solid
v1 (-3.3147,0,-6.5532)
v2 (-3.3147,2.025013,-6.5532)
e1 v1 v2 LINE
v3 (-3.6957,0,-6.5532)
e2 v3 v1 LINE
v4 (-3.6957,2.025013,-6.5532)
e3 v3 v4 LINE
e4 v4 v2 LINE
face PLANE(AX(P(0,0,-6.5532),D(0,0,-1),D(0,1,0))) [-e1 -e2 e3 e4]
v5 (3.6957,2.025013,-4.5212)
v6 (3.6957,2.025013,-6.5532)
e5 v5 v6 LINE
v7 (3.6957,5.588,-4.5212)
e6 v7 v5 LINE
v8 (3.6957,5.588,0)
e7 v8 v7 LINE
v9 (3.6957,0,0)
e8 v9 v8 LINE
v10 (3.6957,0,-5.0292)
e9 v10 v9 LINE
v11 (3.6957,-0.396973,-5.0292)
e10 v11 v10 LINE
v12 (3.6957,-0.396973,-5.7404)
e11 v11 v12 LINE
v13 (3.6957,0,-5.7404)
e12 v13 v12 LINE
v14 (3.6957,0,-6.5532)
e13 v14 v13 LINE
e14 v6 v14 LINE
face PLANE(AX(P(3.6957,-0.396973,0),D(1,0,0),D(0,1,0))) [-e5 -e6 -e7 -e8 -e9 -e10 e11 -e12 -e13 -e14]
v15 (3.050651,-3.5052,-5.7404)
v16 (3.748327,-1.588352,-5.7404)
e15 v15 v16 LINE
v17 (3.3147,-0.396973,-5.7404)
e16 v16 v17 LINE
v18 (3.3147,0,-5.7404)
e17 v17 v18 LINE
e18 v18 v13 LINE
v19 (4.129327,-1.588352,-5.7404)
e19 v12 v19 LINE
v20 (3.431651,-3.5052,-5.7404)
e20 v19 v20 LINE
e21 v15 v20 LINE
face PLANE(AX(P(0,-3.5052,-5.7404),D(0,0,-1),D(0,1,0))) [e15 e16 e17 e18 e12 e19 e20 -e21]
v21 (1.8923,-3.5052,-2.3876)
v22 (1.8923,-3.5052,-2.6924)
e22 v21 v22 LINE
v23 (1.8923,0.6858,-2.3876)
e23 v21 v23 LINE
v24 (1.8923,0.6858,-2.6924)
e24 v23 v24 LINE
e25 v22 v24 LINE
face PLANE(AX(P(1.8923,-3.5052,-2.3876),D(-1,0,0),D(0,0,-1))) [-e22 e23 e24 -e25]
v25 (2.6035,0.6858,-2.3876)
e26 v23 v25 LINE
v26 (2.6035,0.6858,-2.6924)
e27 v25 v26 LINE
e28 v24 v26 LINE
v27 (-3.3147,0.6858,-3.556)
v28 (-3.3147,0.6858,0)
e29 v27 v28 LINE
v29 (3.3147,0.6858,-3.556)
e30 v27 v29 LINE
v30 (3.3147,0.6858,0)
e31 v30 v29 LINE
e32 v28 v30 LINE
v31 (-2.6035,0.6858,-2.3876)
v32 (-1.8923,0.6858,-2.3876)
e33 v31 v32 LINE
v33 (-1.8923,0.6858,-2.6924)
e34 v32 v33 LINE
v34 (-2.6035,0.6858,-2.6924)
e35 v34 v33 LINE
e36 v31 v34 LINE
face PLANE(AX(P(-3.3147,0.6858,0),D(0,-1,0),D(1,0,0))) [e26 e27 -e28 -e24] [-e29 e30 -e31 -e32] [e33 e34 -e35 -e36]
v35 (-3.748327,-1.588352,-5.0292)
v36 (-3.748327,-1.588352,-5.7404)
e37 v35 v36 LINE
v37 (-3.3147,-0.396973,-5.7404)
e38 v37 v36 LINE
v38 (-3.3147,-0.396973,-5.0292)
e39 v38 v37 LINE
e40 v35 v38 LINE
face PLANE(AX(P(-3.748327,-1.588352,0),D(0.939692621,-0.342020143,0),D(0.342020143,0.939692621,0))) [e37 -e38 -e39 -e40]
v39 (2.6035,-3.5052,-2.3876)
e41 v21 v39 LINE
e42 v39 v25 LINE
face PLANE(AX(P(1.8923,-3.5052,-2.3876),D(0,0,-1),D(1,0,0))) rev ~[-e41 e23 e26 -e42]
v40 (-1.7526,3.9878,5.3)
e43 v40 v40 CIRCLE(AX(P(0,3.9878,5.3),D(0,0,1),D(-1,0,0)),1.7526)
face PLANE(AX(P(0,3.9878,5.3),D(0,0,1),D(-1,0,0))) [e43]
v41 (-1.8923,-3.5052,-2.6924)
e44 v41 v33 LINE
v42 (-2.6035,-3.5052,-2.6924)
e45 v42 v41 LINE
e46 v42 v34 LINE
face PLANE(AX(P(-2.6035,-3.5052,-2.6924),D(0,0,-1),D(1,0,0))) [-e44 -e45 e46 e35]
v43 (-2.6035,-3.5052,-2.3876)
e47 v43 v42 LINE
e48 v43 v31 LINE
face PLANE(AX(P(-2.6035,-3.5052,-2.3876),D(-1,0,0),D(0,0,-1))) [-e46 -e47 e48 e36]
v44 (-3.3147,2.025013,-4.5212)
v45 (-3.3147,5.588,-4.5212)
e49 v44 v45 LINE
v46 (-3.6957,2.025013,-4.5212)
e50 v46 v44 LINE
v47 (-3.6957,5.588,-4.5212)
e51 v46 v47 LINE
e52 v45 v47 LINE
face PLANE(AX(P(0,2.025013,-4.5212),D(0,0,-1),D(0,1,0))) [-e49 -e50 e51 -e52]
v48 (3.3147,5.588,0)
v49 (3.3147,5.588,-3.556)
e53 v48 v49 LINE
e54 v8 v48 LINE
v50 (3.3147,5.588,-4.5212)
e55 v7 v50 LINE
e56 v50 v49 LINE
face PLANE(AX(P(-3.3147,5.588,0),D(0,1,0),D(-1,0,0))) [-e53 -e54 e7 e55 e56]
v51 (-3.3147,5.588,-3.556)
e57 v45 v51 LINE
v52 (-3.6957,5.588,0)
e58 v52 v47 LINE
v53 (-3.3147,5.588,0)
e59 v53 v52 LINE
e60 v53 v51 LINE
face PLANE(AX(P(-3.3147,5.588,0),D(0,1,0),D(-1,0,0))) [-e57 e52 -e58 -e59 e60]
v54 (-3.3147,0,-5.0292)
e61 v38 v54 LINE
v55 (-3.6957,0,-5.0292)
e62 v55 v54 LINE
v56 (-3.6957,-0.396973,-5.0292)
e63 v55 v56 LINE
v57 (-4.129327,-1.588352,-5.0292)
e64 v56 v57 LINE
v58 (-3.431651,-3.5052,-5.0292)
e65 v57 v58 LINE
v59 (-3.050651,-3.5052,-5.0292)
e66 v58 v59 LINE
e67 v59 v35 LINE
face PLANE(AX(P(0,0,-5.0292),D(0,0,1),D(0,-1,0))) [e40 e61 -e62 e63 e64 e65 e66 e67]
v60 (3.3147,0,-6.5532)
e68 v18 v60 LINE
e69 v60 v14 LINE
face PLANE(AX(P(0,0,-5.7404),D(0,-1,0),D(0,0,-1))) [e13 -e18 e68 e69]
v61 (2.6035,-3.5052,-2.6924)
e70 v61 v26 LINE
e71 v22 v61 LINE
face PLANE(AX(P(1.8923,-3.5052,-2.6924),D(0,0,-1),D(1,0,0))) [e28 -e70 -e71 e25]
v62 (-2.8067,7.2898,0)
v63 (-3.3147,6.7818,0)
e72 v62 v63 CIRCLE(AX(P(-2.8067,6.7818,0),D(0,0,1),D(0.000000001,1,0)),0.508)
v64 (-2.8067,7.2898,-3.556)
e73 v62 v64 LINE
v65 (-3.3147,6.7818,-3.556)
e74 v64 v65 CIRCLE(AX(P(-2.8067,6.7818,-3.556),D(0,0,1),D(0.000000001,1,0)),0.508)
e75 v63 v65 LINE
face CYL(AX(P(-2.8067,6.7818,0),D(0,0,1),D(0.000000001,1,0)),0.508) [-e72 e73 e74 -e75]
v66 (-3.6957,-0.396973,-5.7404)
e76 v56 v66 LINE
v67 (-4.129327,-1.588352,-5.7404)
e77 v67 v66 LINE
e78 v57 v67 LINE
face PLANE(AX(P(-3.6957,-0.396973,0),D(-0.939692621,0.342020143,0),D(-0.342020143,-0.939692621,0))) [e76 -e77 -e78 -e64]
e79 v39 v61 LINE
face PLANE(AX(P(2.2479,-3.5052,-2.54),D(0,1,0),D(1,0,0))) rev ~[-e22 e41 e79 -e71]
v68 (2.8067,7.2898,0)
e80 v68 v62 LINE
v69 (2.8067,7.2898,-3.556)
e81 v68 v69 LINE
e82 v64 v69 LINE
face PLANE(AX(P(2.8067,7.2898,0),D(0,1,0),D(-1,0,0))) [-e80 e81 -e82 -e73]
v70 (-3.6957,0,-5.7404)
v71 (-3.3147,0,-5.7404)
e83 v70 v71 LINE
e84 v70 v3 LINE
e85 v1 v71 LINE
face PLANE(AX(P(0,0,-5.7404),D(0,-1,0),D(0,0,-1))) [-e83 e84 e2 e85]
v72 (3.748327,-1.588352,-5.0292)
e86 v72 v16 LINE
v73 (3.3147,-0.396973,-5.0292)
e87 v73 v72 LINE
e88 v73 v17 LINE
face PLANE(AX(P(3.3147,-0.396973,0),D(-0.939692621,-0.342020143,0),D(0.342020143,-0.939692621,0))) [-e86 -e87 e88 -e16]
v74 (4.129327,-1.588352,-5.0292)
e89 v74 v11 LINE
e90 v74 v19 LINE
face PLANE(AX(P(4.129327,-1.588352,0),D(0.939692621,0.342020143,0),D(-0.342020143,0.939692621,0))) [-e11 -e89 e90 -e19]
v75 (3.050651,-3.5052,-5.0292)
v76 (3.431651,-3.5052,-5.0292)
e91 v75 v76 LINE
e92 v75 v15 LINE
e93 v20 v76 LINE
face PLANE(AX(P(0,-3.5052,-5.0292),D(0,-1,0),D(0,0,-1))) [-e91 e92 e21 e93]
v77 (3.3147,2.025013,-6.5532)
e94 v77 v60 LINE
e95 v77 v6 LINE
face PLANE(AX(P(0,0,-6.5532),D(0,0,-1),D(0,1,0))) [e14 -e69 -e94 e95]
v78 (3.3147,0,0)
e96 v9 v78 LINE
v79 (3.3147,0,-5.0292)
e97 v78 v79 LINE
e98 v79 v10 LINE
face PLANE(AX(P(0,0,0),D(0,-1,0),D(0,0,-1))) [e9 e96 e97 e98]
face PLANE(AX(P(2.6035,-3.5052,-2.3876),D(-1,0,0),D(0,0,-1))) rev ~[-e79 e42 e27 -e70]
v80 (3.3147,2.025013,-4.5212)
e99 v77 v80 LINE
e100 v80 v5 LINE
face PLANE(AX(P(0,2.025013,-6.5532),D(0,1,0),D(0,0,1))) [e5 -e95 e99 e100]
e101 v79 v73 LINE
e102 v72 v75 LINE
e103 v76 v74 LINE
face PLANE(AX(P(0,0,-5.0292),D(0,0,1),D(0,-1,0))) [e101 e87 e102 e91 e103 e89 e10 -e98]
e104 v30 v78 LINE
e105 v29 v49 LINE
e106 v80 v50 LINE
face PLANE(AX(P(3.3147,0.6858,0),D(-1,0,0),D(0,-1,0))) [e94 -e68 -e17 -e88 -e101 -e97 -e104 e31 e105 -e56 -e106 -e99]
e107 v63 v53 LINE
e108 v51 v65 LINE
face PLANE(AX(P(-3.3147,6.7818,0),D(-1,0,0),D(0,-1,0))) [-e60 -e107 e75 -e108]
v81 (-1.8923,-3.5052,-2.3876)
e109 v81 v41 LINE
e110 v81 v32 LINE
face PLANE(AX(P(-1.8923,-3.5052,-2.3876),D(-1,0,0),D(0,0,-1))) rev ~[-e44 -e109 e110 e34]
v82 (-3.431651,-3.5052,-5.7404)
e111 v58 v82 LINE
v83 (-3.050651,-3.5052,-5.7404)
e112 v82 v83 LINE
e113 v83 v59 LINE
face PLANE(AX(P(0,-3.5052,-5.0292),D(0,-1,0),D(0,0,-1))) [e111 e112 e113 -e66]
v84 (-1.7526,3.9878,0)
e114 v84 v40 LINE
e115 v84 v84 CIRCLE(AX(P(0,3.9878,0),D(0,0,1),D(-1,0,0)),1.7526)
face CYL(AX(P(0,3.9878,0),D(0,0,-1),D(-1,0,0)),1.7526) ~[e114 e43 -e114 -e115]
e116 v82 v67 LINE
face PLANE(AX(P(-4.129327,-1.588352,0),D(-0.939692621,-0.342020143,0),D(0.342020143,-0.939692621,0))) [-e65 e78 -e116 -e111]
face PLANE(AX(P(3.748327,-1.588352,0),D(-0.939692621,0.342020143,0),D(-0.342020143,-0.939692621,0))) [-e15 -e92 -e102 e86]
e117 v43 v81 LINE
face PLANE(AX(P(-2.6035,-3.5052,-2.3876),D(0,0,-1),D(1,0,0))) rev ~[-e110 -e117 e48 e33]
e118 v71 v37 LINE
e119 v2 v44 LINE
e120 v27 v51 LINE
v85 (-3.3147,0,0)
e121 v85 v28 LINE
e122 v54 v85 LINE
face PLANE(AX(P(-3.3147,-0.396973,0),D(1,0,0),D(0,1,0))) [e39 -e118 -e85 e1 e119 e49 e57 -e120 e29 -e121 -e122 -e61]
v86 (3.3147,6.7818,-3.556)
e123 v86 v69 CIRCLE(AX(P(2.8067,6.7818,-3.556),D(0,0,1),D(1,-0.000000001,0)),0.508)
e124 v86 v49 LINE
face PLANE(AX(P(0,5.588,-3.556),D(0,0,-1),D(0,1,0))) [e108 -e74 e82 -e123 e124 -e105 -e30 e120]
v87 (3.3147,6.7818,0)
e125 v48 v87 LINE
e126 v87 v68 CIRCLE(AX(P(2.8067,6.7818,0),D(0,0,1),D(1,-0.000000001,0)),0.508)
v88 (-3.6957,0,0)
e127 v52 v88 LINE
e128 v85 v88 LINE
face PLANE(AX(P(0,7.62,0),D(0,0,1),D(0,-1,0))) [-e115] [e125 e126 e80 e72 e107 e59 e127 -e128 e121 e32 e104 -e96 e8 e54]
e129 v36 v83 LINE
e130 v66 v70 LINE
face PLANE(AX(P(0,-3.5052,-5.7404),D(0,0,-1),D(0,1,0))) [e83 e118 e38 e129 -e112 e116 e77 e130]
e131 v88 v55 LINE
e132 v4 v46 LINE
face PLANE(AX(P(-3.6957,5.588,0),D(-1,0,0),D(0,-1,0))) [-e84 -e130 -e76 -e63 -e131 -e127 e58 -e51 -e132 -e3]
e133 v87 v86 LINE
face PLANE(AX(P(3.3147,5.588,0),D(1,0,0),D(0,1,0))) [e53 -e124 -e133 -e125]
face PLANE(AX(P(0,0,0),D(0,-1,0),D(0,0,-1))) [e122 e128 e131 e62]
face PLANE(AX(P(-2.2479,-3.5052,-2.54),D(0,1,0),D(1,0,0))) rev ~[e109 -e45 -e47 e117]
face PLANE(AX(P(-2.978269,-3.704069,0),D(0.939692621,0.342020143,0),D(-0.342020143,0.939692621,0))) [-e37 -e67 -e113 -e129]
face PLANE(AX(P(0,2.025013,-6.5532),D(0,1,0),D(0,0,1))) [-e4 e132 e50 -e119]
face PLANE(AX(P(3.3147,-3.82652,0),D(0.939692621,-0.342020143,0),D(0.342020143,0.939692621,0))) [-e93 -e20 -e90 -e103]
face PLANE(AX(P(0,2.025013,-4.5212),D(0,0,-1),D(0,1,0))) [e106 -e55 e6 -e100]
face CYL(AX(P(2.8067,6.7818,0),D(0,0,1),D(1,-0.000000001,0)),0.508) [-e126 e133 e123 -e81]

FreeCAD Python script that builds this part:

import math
import FreeCAD as App
import Part
import Sketcher
Q = App.Units.Quantity

doc = App.newDocument("Part")
body = doc.addObject("PartDesign::Body", "Body")

sketch1 = doc.addObject("Sketcher::SketchObject", "Sketch")
body.addObject(sketch1)
sketch1.AttachmentSupport = (doc.YZ_Plane, [""])
sketch1.MapMode = "FlatFace"
sketch1.addGeometry([
    Part.LineSegment(App.Vector(0, 0, 0), App.Vector(0, -5.0292, 0)),
    Part.LineSegment(App.Vector(0, -5.0292, 0), App.Vector(-3.5052, -5.0292, 0)),
    Part.LineSegment(App.Vector(-3.5052, -5.0292, 0), App.Vector(-3.5052, -5.7404, 0)),
    Part.LineSegment(App.Vector(-3.5052, -5.7404, 0), App.Vector(0, -5.7404, 0)),
    Part.LineSegment(App.Vector(0, -5.7404, 0), App.Vector(0, -6.5532, 0)),
    Part.LineSegment(App.Vector(0, -6.5532, 0), App.Vector(2.025013, -6.5532, 0)),
    Part.LineSegment(App.Vector(2.025013, -6.5532, 0), App.Vector(2.025013, -4.5212, 0)),
    Part.LineSegment(App.Vector(2.025013, -4.5212, 0), App.Vector(5.588, -4.5212, 0)),
    Part.LineSegment(App.Vector(5.588, -4.5212, 0), App.Vector(5.588, -3.556, 0)),
    Part.LineSegment(App.Vector(5.588, -3.556, 0), App.Vector(7.62, -3.556, 0)),
    Part.LineSegment(App.Vector(7.62, -3.556, 0), App.Vector(7.62, 0, 0)),
    Part.LineSegment(App.Vector(7.62, 0, 0), App.Vector(0, 0, 0)),
], False)
sketch1.addConstraint([
    Sketcher.Constraint("Coincident", 0, 2, 1, 1),
    Sketcher.Constraint("Coincident", 1, 2, 2, 1),
    Sketcher.Constraint("Coincident", 2, 2, 3, 1),
    Sketcher.Constraint("Coincident", 3, 2, 4, 1),
    Sketcher.Constraint("Coincident", 4, 2, 5, 1),
    Sketcher.Constraint("Coincident", 5, 2, 6, 1),
    Sketcher.Constraint("Coincident", 6, 2, 7, 1),
    Sketcher.Constraint("Coincident", 7, 2, 8, 1),
    Sketcher.Constraint("Coincident", 8, 2, 9, 1),
    Sketcher.Constraint("Coincident", 9, 2, 10, 1),
    Sketcher.Constraint("Coincident", 10, 2, 11, 1),
    Sketcher.Constraint("Coincident", 11, 2, 0, 1),
    Sketcher.Constraint("Vertical", 0),
    Sketcher.Constraint("Horizontal", 1),
    Sketcher.Constraint("Vertical", 2),
    Sketcher.Constraint("Horizontal", 3),
    Sketcher.Constraint("Vertical", 4),
    Sketcher.Constraint("Horizontal", 5),
    Sketcher.Constraint("Vertical", 6),
    Sketcher.Constraint("Horizontal", 7),
    Sketcher.Constraint("Vertical", 8),
    Sketcher.Constraint("Horizontal", 9),
    Sketcher.Constraint("Vertical", 10),
    Sketcher.Constraint("Horizontal", 11),
    Sketcher.Constraint("Coincident", 11, 2, -1, 1),
    Sketcher.Constraint("PointOnObject", 3, 2, -2),
    Sketcher.Constraint("Equal", 9, 6),
    Sketcher.Constraint("DistanceX", 11, 2, 11, 1, Q("0.3 in")),
    Sketcher.Constraint("DistanceX", 9, 1, 9, 2, Q("0.08 in")),
    Sketcher.Constraint("DistanceY", 10, 1, 10, 2, Q("0.14 in")),
    Sketcher.Constraint("DistanceX", 1, 2, 1, 1, Q("0.138 in")),
    Sketcher.Constraint("DistanceY", 0, 2, 0, 1, Q("0.198 in")),
    Sketcher.Constraint("DistanceY", 2, 2, 2, 1, Q("0.028 in")),
    Sketcher.Constraint("DistanceY", 4, 2, 4, 1, Q("0.032 in")),
    Sketcher.Constraint("DistanceX", 5, 1, 5, 2, Q("2.025013 mm")),
])
pad1 = doc.addObject("PartDesign::Pad", "Pad")
body.addObject(pad1)
pad1.Profile = sketch1
pad1.Length = Q("0.5 in")
pad1.Midplane = True

sketch2 = doc.addObject("Sketcher::SketchObject", "Sketch001")
body.addObject(sketch2)
sketch2.AttachmentSupport = (doc.XY_Plane, [""])
sketch2.MapMode = "FlatFace"
sketch2.addGeometry([
    Part.LineSegment(App.Vector(-9.161, 10.431, 0), App.Vector(-9.161, -6.316, 0)),
    Part.LineSegment(App.Vector(-9.161, -6.316, 0), App.Vector(9.161, -6.316, 0)),
    Part.LineSegment(App.Vector(9.161, -6.316, 0), App.Vector(9.161, 10.431, 0)),
    Part.LineSegment(App.Vector(9.161, 10.431, 0), App.Vector(-9.161, 10.431, 0)),
    Part.LineSegment(App.Vector(3.3147, 0.6858, 0), App.Vector(-3.3147, 0.6858, 0)),
    Part.LineSegment(App.Vector(-3.3147, 0.6858, 0), App.Vector(-3.3147, -0.396973, 0)),
    Part.LineSegment(App.Vector(-3.3147, -0.396973, 0), App.Vector(-3.748327, -1.588352, 0)),
    Part.LineSegment(App.Vector(-3.748327, -1.588352, 0), App.Vector(-2.978269, -3.704069, 0)),
    Part.LineSegment(App.Vector(-2.978269, -3.704069, 0), App.Vector(-3.3147, -3.82652, 0)),
    Part.LineSegment(App.Vector(-3.3147, -3.82652, 0), App.Vector(-4.129327, -1.588352, 0)),
    Part.LineSegment(App.Vector(-4.129327, -1.588352, 0), App.Vector(-3.6957, -0.396973, 0)),
    Part.LineSegment(App.Vector(-3.6957, -0.396973, 0), App.Vector(-3.6957, 5.588, 0)),
    Part.LineSegment(App.Vector(-3.6957, 5.588, 0), App.Vector(-3.3147, 5.588, 0)),
    Part.LineSegment(App.Vector(-3.3147, 5.588, 0), App.Vector(-3.3147, 6.7818, 0)),
    Part.ArcOfCircle(Part.Circle(App.Vector(-2.8067, 6.7818, 0), App.Vector(0, 0, 1), 0.508), math.radians(90), math.radians(180)),
    Part.LineSegment(App.Vector(-2.8067, 7.2898, 0), App.Vector(2.8067, 7.2898, 0)),
    Part.ArcOfCircle(Part.Circle(App.Vector(2.8067, 6.7818, 0), App.Vector(0, 0, 1), 0.508), math.radians(0), math.radians(90)),
    Part.LineSegment(App.Vector(3.3147, 6.7818, 0), App.Vector(3.3147, 5.588, 0)),
    Part.LineSegment(App.Vector(3.3147, 5.588, 0), App.Vector(3.6957, 5.588, 0)),
    Part.LineSegment(App.Vector(3.6957, 5.588, 0), App.Vector(3.6957, -0.396973, 0)),
    Part.LineSegment(App.Vector(3.6957, -0.396973, 0), App.Vector(4.129327, -1.588352, 0)),
    Part.LineSegment(App.Vector(4.129327, -1.588352, 0), App.Vector(3.3147, -3.82652, 0)),
    Part.LineSegment(App.Vector(3.3147, -3.82652, 0), App.Vector(2.978269, -3.704069, 0)),
    Part.LineSegment(App.Vector(2.978269, -3.704069, 0), App.Vector(3.748327, -1.588352, 0)),
    Part.LineSegment(App.Vector(3.748327, -1.588352, 0), App.Vector(3.3147, -0.396973, 0)),
    Part.LineSegment(App.Vector(3.3147, -0.396973, 0), App.Vector(3.3147, 0.6858, 0)),
], False)
sketch2.addConstraint([
    Sketcher.Constraint("Coincident", 0, 2, 1, 1),
    Sketcher.Constraint("Coincident", 1, 2, 2, 1),
    Sketcher.Constraint("Coincident", 2, 2, 3, 1),
    Sketcher.Constraint("Coincident", 3, 2, 0, 1),
    Sketcher.Constraint("Coincident", 4, 2, 5, 1),
    Sketcher.Constraint("Coincident", 5, 2, 6, 1),
    Sketcher.Constraint("Coincident", 6, 2, 7, 1),
    Sketcher.Constraint("Coincident", 7, 2, 8, 1),
    Sketcher.Constraint("Coincident", 8, 2, 9, 1),
    Sketcher.Constraint("Coincident", 9, 2, 10, 1),
    Sketcher.Constraint("Coincident", 10, 2, 11, 1),
    Sketcher.Constraint("Coincident", 11, 2, 12, 1),
    Sketcher.Constraint("Coincident", 12, 2, 13, 1),
    Sketcher.Constraint("Tangent", 13, 2, 14, 2),
    Sketcher.Constraint("Tangent", 14, 1, 15, 1),
    Sketcher.Constraint("Tangent", 15, 2, 16, 2),
    Sketcher.Constraint("Tangent", 16, 1, 17, 1),
    Sketcher.Constraint("Coincident", 17, 2, 18, 1),
    Sketcher.Constraint("Coincident", 18, 2, 19, 1),
    Sketcher.Constraint("Coincident", 19, 2, 20, 1),
    Sketcher.Constraint("Coincident", 20, 2, 21, 1),
    Sketcher.Constraint("Coincident", 21, 2, 22, 1),
    Sketcher.Constraint("Coincident", 22, 2, 23, 1),
    Sketcher.Constraint("Coincident", 23, 2, 24, 1),
    Sketcher.Constraint("Coincident", 24, 2, 25, 1),
    Sketcher.Constraint("Coincident", 25, 2, 4, 1),
    Sketcher.Constraint("Vertical", 0),
    Sketcher.Constraint("Horizontal", 1),
    Sketcher.Constraint("Vertical", 2),
    Sketcher.Constraint("Horizontal", 3),
    Sketcher.Constraint("Horizontal", 4),
    Sketcher.Constraint("Vertical", 5),
    Sketcher.Constraint("Vertical", 11),
    Sketcher.Constraint("Horizontal", 12),
    Sketcher.Constraint("Vertical", 13),
    Sketcher.Constraint("Horizontal", 15),
    Sketcher.Constraint("Vertical", 17),
    Sketcher.Constraint("Horizontal", 18),
    Sketcher.Constraint("Vertical", 19),
    Sketcher.Constraint("Vertical", 25),
    Sketcher.Constraint("Equal", 14, 16),
    Sketcher.Constraint("Symmetric", 12, 2, 17, 2, -2),
    Sketcher.Constraint("Symmetric", 10, 2, 19, 2, -2),
    Sketcher.Constraint("Symmetric", 9, 2, 20, 2, -2),
    Sketcher.Constraint("Symmetric", 8, 2, 21, 2, -2),
    Sketcher.Constraint("Symmetric", 7, 2, 22, 2, -2),
    Sketcher.Constraint("Symmetric", 6, 2, 23, 2, -2),
    Sketcher.Constraint("Symmetric", 5, 2, 24, 2, -2),
    Sketcher.Constraint("Perpendicular", 7, 8),
    Sketcher.Constraint("Perpendicular", 8, 9),
    Sketcher.Constraint("Parallel", 6, 10),
    Sketcher.Constraint("Parallel", 9, 20),
    Sketcher.Constraint("Horizontal", 6, 2, 9, 2),
    Sketcher.Constraint("Horizontal", 5, 2, 10, 2),
    Sketcher.Constraint("Vertical", 5, 2, 8, 2),
    Sketcher.Constraint("Vertical", 8, 2, 12, 2),
    Sketcher.Constraint("Radius", 14, Q("0.02 in")),
    Sketcher.Constraint("Angle", 6, Q("-110 deg")),
    Sketcher.Constraint("DistanceX", 4, 2, 4, 1, Q("0.261 in")),
    Sketcher.Constraint("DistanceX", 12, 1, 12, 2, Q("0.015 in")),
    Sketcher.Constraint("DistanceY", 13, 1, 13, 2, Q("0.047 in")),
    Sketcher.Constraint("DistanceY", -1, 1, 11, 2, Q("0.22 in")),
    Sketcher.Constraint("DistanceY", 4, 2, 14, 3, Q("0.24 in")),
    Sketcher.Constraint("DistanceX", 1, 1, 1, 2, Q("18.322 mm")),
    Sketcher.Constraint("DistanceY", 0, 2, 0, 1, Q("16.747 mm")),
    Sketcher.Constraint("Distance", 7, Q("2.251499 mm")),
    Sketcher.Constraint("DistanceX", 0, 2, -1, 1, Q("9.161 mm")),
    Sketcher.Constraint("DistanceY", 0, 2, -1, 1, Q("6.316 mm")),
    Sketcher.Constraint("DistanceY", 5, 2, 5, 1, Q("1.082773 mm")),
])
pocket1 = doc.addObject("PartDesign::Pocket", "Pocket")
body.addObject(pocket1)
pocket1.Profile = sketch2
pocket1.Length = Q("0.6 in")
pocket1.Midplane = True

sketch3 = doc.addObject("Sketcher::SketchObject", "Sketch002")
body.addObject(sketch3)
sketch3.AttachmentSupport = (doc.XZ_Plane, [""])
sketch3.MapMode = "FlatFace"
sketch3.addGeometry([
    Part.LineSegment(App.Vector(-3.3147, -9.515118, 0), App.Vector(-3.3147, -3.556, 0)),
    Part.LineSegment(App.Vector(-3.3147, -3.556, 0), App.Vector(3.3147, -3.556, 0)),
    Part.LineSegment(App.Vector(3.3147, -3.556, 0), App.Vector(3.3147, -9.515118, 0)),
    Part.LineSegment(App.Vector(3.3147, -9.515118, 0), App.Vector(-3.3147, -9.515118, 0)),
], False)
sketch3.addConstraint([
    Sketcher.Constraint("Coincident", 0, 2, 1, 1),
    Sketcher.Constraint("Coincident", 1, 2, 2, 1),
    Sketcher.Constraint("Coincident", 2, 2, 3, 1),
    Sketcher.Constraint("Coincident", 3, 2, 0, 1),
    Sketcher.Constraint("Vertical", 0),
    Sketcher.Constraint("Horizontal", 1),
    Sketcher.Constraint("Vertical", 2),
    Sketcher.Constraint("Horizontal", 3),
    Sketcher.Constraint("DistanceX", 1, 1, 1, 2, Q("0.261 in")),
    Sketcher.Constraint("DistanceY", 0, 2, -1, 1, Q("0.14 in")),
    Sketcher.Constraint("DistanceX", 0, 2, -1, 1, Q("0.1305 in")),
    Sketcher.Constraint("DistanceY", 0, 1, 0, 2, Q("5.959118 mm")),
])
pocket2 = doc.addObject("PartDesign::Pocket", "Pocket001")
body.addObject(pocket2)
pocket2.Profile = sketch3
pocket2.Length = Q("0.5 in")

sketch4 = doc.addObject("Sketcher::SketchObject", "Sketch003")
body.addObject(sketch4)
sketch4.AttachmentSupport = (doc.XZ_Plane, [""])
sketch4.MapMode = "FlatFace"
sketch4.addGeometry([
    Part.LineSegment(App.Vector(1.8923, -2.6924, 0), App.Vector(1.8923, -2.3876, 0)),
    Part.LineSegment(App.Vector(1.8923, -2.3876, 0), App.Vector(2.6035, -2.3876, 0)),
    Part.LineSegment(App.Vector(2.6035, -2.3876, 0), App.Vector(2.6035, -2.6924, 0)),
    Part.LineSegment(App.Vector(2.6035, -2.6924, 0), App.Vector(1.8923, -2.6924, 0)),
    Part.LineSegment(App.Vector(-2.6035, -2.6924, 0), App.Vector(-2.6035, -2.3876, 0)),
    Part.LineSegment(App.Vector(-2.6035, -2.3876, 0), App.Vector(-1.8923, -2.3876, 0)),
    Part.LineSegment(App.Vector(-1.8923, -2.3876, 0), App.Vector(-1.8923, -2.6924, 0)),
    Part.LineSegment(App.Vector(-1.8923, -2.6924, 0), App.Vector(-2.6035, -2.6924, 0)),
], False)
sketch4.addConstraint([
    Sketcher.Constraint("Coincident", 0, 2, 1, 1),
    Sketcher.Constraint("Coincident", 1, 2, 2, 1),
    Sketcher.Constraint("Coincident", 2, 2, 3, 1),
    Sketcher.Constraint("Coincident", 3, 2, 0, 1),
    Sketcher.Constraint("Coincident", 4, 2, 5, 1),
    Sketcher.Constraint("Coincident", 5, 2, 6, 1),
    Sketcher.Constraint("Coincident", 6, 2, 7, 1),
    Sketcher.Constraint("Coincident", 7, 2, 4, 1),
    Sketcher.Constraint("Vertical", 0),
    Sketcher.Constraint("Horizontal", 1),
    Sketcher.Constraint("Vertical", 2),
    Sketcher.Constraint("Horizontal", 3),
    Sketcher.Constraint("Vertical", 4),
    Sketcher.Constraint("Horizontal", 5),
    Sketcher.Constraint("Vertical", 6),
    Sketcher.Constraint("Horizontal", 7),
    Sketcher.Constraint("Symmetric", 1, 2, 4, 2, -2),
    Sketcher.Constraint("Symmetric", 3, 2, 6, 2, -2),
    Sketcher.Constraint("DistanceX", 1, 1, 1, 2, Q("0.028 in")),
    Sketcher.Constraint("DistanceY", 0, 1, 0, 2, Q("0.012 in")),
    Sketcher.Constraint("DistanceY", 0, 2, -1, 1, Q("0.094 in")),
    Sketcher.Constraint("DistanceX", 4, 2, 0, 2, Q("0.177 in")),
])
pad2 = doc.addObject("PartDesign::Pad", "Pad001")
body.addObject(pad2)
pad2.Profile = sketch4
pad2.Type = "TwoLengths"
pad2.Length = Q("0.1 in")
pad2.Length2 = Q("0.138 in")
pad2.Reversed = True

sketch5 = doc.addObject("Sketcher::SketchObject", "Sketch004")
body.addObject(sketch5)
sketch5.AttachmentSupport = (doc.XY_Plane, [""])
sketch5.MapMode = "FlatFace"
sketch5.addGeometry(Part.Circle(App.Vector(0, 3.9878, 0), App.Vector(0, 0, 1), 1.7526), False)
sketch5.addConstraint([
    Sketcher.Constraint("PointOnObject", 0, 3, -2),
    Sketcher.Constraint("Diameter", 0, Q("0.138 in")),
    Sketcher.Constraint("DistanceY", -1, 1, 0, 3, Q("0.157 in")),
])
pad3 = doc.addObject("PartDesign::Pad", "Pad002")
body.addObject(pad3)
pad3.Profile = sketch5
pad3.Length = 5.3

doc.recompute()
